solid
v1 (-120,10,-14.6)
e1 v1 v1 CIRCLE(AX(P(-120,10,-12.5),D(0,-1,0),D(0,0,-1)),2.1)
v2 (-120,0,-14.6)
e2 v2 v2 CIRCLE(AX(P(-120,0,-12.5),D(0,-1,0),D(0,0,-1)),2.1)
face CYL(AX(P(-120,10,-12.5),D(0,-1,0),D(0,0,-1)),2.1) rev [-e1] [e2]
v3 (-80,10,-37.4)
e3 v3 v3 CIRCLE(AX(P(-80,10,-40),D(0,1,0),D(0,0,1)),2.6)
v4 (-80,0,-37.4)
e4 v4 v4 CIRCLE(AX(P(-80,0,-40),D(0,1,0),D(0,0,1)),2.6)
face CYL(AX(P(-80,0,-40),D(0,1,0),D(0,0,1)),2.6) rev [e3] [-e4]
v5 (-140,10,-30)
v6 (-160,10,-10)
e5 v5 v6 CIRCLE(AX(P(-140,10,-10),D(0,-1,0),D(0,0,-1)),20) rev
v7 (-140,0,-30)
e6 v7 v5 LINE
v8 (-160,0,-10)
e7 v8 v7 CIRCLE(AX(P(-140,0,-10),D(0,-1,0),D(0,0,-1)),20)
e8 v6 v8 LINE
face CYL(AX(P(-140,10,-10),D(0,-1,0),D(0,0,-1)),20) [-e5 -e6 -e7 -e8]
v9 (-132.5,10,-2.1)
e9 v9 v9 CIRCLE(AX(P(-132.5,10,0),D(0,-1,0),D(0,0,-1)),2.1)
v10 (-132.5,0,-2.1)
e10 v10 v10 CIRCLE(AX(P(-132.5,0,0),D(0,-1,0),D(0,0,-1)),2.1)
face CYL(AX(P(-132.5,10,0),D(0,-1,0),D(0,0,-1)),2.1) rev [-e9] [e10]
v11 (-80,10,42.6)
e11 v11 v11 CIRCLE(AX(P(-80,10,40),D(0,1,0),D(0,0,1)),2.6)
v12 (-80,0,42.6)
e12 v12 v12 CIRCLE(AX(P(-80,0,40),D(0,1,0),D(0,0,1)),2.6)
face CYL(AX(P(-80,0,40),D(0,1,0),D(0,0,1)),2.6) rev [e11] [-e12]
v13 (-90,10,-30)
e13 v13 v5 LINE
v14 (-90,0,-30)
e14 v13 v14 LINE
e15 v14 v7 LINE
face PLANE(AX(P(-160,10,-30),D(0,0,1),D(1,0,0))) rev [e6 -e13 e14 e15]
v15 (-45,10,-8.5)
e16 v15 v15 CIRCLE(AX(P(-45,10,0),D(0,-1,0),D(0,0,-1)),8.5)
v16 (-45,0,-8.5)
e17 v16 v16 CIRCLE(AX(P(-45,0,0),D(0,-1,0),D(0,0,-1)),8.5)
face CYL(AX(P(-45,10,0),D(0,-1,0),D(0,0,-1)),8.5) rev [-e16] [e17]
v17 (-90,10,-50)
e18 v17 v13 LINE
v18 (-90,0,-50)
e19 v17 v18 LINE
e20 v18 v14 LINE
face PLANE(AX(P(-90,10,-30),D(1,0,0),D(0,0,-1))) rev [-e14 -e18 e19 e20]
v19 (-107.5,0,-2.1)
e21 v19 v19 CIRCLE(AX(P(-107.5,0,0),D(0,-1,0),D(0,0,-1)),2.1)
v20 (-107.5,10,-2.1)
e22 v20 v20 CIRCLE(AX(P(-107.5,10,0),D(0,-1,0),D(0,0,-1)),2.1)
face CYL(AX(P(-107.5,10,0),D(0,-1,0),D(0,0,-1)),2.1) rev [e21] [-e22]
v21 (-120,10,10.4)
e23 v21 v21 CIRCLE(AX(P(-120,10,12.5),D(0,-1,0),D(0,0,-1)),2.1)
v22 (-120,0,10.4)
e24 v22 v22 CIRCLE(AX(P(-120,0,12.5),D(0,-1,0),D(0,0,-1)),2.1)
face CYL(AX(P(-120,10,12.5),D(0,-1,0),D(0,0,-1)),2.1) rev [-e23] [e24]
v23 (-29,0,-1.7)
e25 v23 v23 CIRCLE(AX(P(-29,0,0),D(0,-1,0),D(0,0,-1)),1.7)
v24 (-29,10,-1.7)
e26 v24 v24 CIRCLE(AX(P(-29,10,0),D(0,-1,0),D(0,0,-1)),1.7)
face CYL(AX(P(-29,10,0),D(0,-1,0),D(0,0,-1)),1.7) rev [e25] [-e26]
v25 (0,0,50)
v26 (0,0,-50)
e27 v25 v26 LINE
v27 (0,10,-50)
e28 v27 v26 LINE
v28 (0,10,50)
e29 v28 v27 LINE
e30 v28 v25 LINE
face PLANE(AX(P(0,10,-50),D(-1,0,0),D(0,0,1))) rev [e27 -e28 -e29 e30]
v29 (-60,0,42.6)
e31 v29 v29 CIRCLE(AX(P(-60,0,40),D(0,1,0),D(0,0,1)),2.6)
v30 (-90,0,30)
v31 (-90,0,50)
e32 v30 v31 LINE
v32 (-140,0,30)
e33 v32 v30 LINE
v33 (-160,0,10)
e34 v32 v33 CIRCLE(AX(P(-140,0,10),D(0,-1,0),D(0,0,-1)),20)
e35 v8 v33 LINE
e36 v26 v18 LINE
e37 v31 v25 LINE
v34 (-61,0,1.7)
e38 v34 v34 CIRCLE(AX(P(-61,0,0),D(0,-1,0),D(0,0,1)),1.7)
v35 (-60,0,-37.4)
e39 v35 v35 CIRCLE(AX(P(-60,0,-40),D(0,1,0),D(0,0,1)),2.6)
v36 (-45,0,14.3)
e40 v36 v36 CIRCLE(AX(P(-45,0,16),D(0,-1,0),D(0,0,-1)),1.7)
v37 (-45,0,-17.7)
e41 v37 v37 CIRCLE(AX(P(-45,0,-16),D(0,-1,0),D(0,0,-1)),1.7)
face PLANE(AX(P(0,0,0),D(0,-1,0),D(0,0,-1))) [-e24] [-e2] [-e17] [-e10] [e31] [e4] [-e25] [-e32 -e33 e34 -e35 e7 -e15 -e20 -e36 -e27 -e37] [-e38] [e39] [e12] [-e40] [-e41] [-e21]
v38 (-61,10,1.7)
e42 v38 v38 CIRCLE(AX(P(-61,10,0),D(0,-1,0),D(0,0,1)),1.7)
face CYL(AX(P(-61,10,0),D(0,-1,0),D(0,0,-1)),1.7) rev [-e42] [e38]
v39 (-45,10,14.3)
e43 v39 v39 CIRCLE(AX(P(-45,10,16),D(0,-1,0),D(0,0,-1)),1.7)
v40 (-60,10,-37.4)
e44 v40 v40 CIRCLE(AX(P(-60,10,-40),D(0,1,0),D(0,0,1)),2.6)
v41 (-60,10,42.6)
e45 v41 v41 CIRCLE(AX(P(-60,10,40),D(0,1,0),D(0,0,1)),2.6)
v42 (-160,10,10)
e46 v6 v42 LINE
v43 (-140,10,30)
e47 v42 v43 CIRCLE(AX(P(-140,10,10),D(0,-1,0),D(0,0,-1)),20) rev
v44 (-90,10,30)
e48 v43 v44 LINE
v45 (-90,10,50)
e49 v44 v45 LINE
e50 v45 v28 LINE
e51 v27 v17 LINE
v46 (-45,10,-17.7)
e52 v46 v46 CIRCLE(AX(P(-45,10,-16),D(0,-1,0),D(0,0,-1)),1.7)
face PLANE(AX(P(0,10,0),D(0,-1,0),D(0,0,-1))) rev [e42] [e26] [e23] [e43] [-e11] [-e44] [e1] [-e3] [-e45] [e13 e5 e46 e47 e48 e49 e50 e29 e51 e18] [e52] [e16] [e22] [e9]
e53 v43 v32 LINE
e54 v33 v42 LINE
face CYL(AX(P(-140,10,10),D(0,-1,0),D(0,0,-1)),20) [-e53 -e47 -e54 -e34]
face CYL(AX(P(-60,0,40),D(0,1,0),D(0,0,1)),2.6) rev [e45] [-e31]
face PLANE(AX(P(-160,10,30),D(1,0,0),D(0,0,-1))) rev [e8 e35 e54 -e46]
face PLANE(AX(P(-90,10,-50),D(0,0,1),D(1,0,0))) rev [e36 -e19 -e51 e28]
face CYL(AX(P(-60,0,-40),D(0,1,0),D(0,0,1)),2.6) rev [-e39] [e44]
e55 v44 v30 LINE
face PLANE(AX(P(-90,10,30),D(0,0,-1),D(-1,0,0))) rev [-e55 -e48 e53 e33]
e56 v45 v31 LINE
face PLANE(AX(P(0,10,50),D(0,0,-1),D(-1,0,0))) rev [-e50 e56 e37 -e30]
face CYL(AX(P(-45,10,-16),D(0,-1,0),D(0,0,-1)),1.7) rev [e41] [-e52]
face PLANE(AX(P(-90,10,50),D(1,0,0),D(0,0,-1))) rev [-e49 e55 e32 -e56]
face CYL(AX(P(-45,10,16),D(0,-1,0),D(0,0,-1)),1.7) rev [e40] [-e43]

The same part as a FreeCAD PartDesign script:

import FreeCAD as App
import Part
import Sketcher
from FreeCAD import Vector


def edges_at(feature, points):
    """Names of the edges that pass closest to the given points."""
    edges = feature.Shape.Edges
    near = lambda p: min(range(len(edges)), key=lambda i: edges[i].distToShape(Part.Vertex(*p))[0])
    return sorted({f"Edge{near(p) + 1}" for p in points})

doc = App.newDocument("Part")
params = doc.addObject("Spreadsheet::Sheet", "Params")
for row, (alias, value) in enumerate([
    ("sketch1_width", "90 mm"),
    ("sketch1_width2", "70 mm"),
    ("sketch1_height", "100 mm"),
    ("sketch1_height2", "20 mm"),
    ("pad1_length", "10 mm"),
    ("fillet_radius", "20 mm"),
    ("sketch2_diameter", "5.2 mm"),
    ("sketch3_diameter", "17 mm"),
    ("sketch4_diameter", "3.4 mm"),
    ("pocket3_length", "10 mm"),
    ("sketch5_diameter", "4.2 mm"),
    ("pocket4_length", "10 mm"),
], start=1):
    params.set(f"A{row}", alias)
    params.set(f"B{row}", "=" + value)
    params.setAlias(f"B{row}", alias)

body = doc.addObject("PartDesign::Body", "Body")

# Sketch on XZ plane
sketch1 = doc.addObject("Sketcher::SketchObject", "Sketch")
body.addObject(sketch1)
sketch1.AttachmentSupport = (doc.XZ_Plane, [""])
sketch1.MapMode = "FlatFace"
sketch1.addGeometry(Part.LineSegment(Vector(0, 50, 0), Vector(0, -50, 0)), False)
sketch1.addGeometry(Part.LineSegment(Vector(0, -50, 0), Vector(-90, -50, 0)), False)
sketch1.addGeometry(Part.LineSegment(Vector(-90, -50, 0), Vector(-90, -30, 0)), False)
sketch1.addGeometry(Part.LineSegment(Vector(-90, -30, 0), Vector(-160, -30, 0)), False)
sketch1.addGeometry(Part.LineSegment(Vector(-160, -30, 0), Vector(-160, 30, 0)), False)
sketch1.addGeometry(Part.LineSegment(Vector(-160, 30, 0), Vector(-90, 30, 0)), False)
sketch1.addGeometry(Part.LineSegment(Vector(-90, 30, 0), Vector(-90, 50, 0)), False)
sketch1.addGeometry(Part.LineSegment(Vector(-90, 50, 0), Vector(0, 50, 0)), False)
sketch1.addConstraint(Sketcher.Constraint("Coincident", 0, 2, 1, 1))
sketch1.addConstraint(Sketcher.Constraint("Coincident", 1, 2, 2, 1))
sketch1.addConstraint(Sketcher.Constraint("Coincident", 2, 2, 3, 1))
sketch1.addConstraint(Sketcher.Constraint("Coincident", 3, 2, 4, 1))
sketch1.addConstraint(Sketcher.Constraint("Coincident", 4, 2, 5, 1))
sketch1.addConstraint(Sketcher.Constraint("Coincident", 5, 2, 6, 1))
sketch1.addConstraint(Sketcher.Constraint("Coincident", 6, 2, 7, 1))
sketch1.addConstraint(Sketcher.Constraint("Coincident", 7, 2, 0, 1))
sketch1.addConstraint(Sketcher.Constraint("Vertical", 0))
sketch1.addConstraint(Sketcher.Constraint("Horizontal", 1))
sketch1.addConstraint(Sketcher.Constraint("Vertical", 2))
sketch1.addConstraint(Sketcher.Constraint("Horizontal", 3))
sketch1.addConstraint(Sketcher.Constraint("Vertical", 4))
sketch1.addConstraint(Sketcher.Constraint("Horizontal", 5))
sketch1.addConstraint(Sketcher.Constraint("Vertical", 6))
sketch1.addConstraint(Sketcher.Constraint("Horizontal", 7))
sketch1.addConstraint(Sketcher.Constraint("Symmetric", 0, 2, 7, 2, -1, 1))
sketch1.addConstraint(Sketcher.Constraint("Symmetric", 2, 2, 5, 2, -1))
sketch1.addConstraint(Sketcher.Constraint("DistanceX", 1, 2, 1, 1, 90.0))
sketch1.addConstraint(Sketcher.Constraint("DistanceX", 3, 2, 3, 1, 70.0))
sketch1.addConstraint(Sketcher.Constraint("DistanceY", 0, 2, 0, 1, 100.0))
sketch1.addConstraint(Sketcher.Constraint("DistanceY", 2, 1, 2, 2, 20.0))
sketch1.setExpression("Constraints[18]", "Params.sketch1_width")
sketch1.setExpression("Constraints[19]", "Params.sketch1_width2")
sketch1.setExpression("Constraints[20]", "Params.sketch1_height")
sketch1.setExpression("Constraints[21]", "Params.sketch1_height2")
pad1 = doc.addObject("PartDesign::Pad", "Pad")
body.addObject(pad1)
pad1.Profile = sketch1
pad1.setExpression("Length", "Params.pad1_length")
pad1.Reversed = True
doc.recompute()

fillet = doc.addObject("PartDesign::Fillet", "Fillet")
body.addObject(fillet)
fillet.Base = (pad1, edges_at(pad1, [(-160, 5, 30), (-160, 5, -30)]))
fillet.setExpression("Radius", "Params.fillet_radius")

# Sketch on XZ plane
sketch2 = doc.addObject("Sketcher::SketchObject", "Sketch001")
body.addObject(sketch2)
sketch2.AttachmentSupport = (doc.XZ_Plane, [""])
sketch2.MapMode = "FlatFace"
sketch2.AttachmentOffset = App.Placement(Vector(0, 0, -10), App.Rotation())
sketch2.addGeometry(Part.Circle(Vector(-60, 40, 0), Vector(0, 0, 1), 2.6), False)
sketch2.addGeometry(Part.Circle(Vector(-80, 40, 0), Vector(0, 0, 1), 2.6), False)
sketch2.addGeometry(Part.Circle(Vector(-80, -40, 0), Vector(0, 0, 1), 2.6), False)
sketch2.addGeometry(Part.Circle(Vector(-60, -40, 0), Vector(0, 0, 1), 2.6), False)
sketch2.addConstraint(Sketcher.Constraint("Equal", 0, 1))
sketch2.addConstraint(Sketcher.Constraint("Equal", 1, 2))
sketch2.addConstraint(Sketcher.Constraint("Equal", 2, 3))
sketch2.addConstraint(Sketcher.Constraint("Symmetric", 1, 3, 2, 3, -1))
sketch2.addConstraint(Sketcher.Constraint("Symmetric", 0, 3, 3, 3, -1))
sketch2.addConstraint(Sketcher.Constraint("Horizontal", 0, 3, 1, 3))
sketch2.addConstraint(Sketcher.Constraint("Diameter", 0, 5.2))
sketch2.addConstraint(Sketcher.Constraint("DistanceX", 0, 3, -1, 1, 60.0))
sketch2.addConstraint(Sketcher.Constraint("DistanceY", -1, 1, 0, 3, 40.0))
sketch2.addConstraint(Sketcher.Constraint("DistanceX", 1, 3, -1, 1, 80.0))
sketch2.setExpression("Constraints[6]", "Params.sketch2_diameter")
pocket1 = doc.addObject("PartDesign::Pocket", "Pocket")
body.addObject(pocket1)
pocket1.Profile = sketch2
pocket1.Type = "ThroughAll"
pocket1.Reversed = True

# Sketch on XZ plane
sketch3 = doc.addObject("Sketcher::SketchObject", "Sketch002")
body.addObject(sketch3)
sketch3.AttachmentSupport = (doc.XZ_Plane, [""])
sketch3.MapMode = "FlatFace"
sketch3.addGeometry(Part.Circle(Vector(-45, 0, 0), Vector(0, 0, 1), 8), False)
sketch3.addConstraint(Sketcher.Constraint("PointOnObject", 0, 3, -1))
sketch3.addConstraint(Sketcher.Constraint("Diameter", 0, 17.0))
sketch3.addConstraint(Sketcher.Constraint("DistanceX", 0, 3, -1, 1, 45.0))
sketch3.setExpression("Constraints[1]", "Params.sketch3_diameter")
pocket2 = doc.addObject("PartDesign::Pocket", "Pocket001")
body.addObject(pocket2)
pocket2.Profile = sketch3
pocket2.Type = "ThroughAll"

# Sketch on XZ plane
sketch4 = doc.addObject("Sketcher::SketchObject", "Sketch003")
body.addObject(sketch4)
sketch4.AttachmentSupport = (doc.XZ_Plane, [""])
sketch4.MapMode = "FlatFace"
sketch4.addGeometry(Part.Circle(Vector(-45, 16, 0), Vector(0, 0, 1), 1.7), False)
sketch4.addGeometry(Part.Circle(Vector(-45, -16, 0), Vector(0, 0, 1), 1.7), False)
sketch4.addGeometry(Part.Circle(Vector(-29, 0, 0), Vector(0, 0, 1), 1.7), False)
sketch4.addGeometry(Part.Circle(Vector(-61, 0, 0), Vector(0, 0, 1), 1.7), False)
sketch4.addConstraint(Sketcher.Constraint("Equal", 0, 1))
sketch4.addConstraint(Sketcher.Constraint("Equal", 1, 2))
sketch4.addConstraint(Sketcher.Constraint("Equal", 2, 3))
sketch4.addConstraint(Sketcher.Constraint("Symmetric", 0, 3, 1, 3, -1))
sketch4.addConstraint(Sketcher.Constraint("PointOnObject", 2, 3, -1))
sketch4.addConstraint(Sketcher.Constraint("PointOnObject", 3, 3, -1))
sketch4.addConstraint(Sketcher.Constraint("Diameter", 0, 3.4))
sketch4.addConstraint(Sketcher.Constraint("DistanceX", 0, 3, -1, 1, 45.0))
sketch4.addConstraint(Sketcher.Constraint("DistanceY", -1, 1, 0, 3, 16.0))
sketch4.addConstraint(Sketcher.Constraint("DistanceX", 2, 3, -1, 1, 29.0))
sketch4.addConstraint(Sketcher.Constraint("DistanceX", 3, 3, -1, 1, 61.0))
sketch4.setExpression("Constraints[6]", "Params.sketch4_diameter")
pocket3 = doc.addObject("PartDesign::Pocket", "Pocket002")
body.addObject(pocket3)
pocket3.Profile = sketch4
pocket3.setExpression("Length", "Params.pocket3_length")

# Sketch on XZ plane
sketch5 = doc.addObject("Sketcher::SketchObject", "Sketch004")
body.addObject(sketch5)
sketch5.AttachmentSupport = (doc.XZ_Plane, [""])
sketch5.MapMode = "FlatFace"
sketch5.addGeometry(Part.Circle(Vector(-120, 12.5, 0), Vector(0, 0, 1), 2.1), False)
sketch5.addGeometry(Part.Circle(Vector(-132.5, 0, 0), Vector(0, 0, 1), 2.1), False)
sketch5.addGeometry(Part.Circle(Vector(-120, -12.5, 0), Vector(0, 0, 1), 2.1), False)
sketch5.addGeometry(Part.Circle(Vector(-107.5, 0, 0), Vector(0, 0, 1), 2.1), False)
sketch5.addConstraint(Sketcher.Constraint("Equal", 0, 1))
sketch5.addConstraint(Sketcher.Constraint("Equal", 1, 2))
sketch5.addConstraint(Sketcher.Constraint("Equal", 2, 3))
sketch5.addConstraint(Sketcher.Constraint("Symmetric", 0, 3, 2, 3, -1))
sketch5.addConstraint(Sketcher.Constraint("PointOnObject", 1, 3, -1))
sketch5.addConstraint(Sketcher.Constraint("PointOnObject", 3, 3, -1))
sketch5.addConstraint(Sketcher.Constraint("Diameter", 0, 4.2))
sketch5.addConstraint(Sketcher.Constraint("DistanceX", 0, 3, -1, 1, 120.0))
sketch5.addConstraint(Sketcher.Constraint("DistanceY", 2, 3, 0, 3, 25.0))
sketch5.addConstraint(Sketcher.Constraint("DistanceX", 1, 3, 3, 3, 25.0))
sketch5.addConstraint(Sketcher.Constraint("DistanceX", 1, 3, -1, 1, 132.5))
sketch5.setExpression("Constraints[6]", "Params.sketch5_diameter")
pocket4 = doc.addObject("PartDesign::Pocket", "Pocket003")
body.addObject(pocket4)
pocket4.Profile = sketch5
pocket4.setExpression("Length", "Params.pocket4_length")

doc.recompute()
